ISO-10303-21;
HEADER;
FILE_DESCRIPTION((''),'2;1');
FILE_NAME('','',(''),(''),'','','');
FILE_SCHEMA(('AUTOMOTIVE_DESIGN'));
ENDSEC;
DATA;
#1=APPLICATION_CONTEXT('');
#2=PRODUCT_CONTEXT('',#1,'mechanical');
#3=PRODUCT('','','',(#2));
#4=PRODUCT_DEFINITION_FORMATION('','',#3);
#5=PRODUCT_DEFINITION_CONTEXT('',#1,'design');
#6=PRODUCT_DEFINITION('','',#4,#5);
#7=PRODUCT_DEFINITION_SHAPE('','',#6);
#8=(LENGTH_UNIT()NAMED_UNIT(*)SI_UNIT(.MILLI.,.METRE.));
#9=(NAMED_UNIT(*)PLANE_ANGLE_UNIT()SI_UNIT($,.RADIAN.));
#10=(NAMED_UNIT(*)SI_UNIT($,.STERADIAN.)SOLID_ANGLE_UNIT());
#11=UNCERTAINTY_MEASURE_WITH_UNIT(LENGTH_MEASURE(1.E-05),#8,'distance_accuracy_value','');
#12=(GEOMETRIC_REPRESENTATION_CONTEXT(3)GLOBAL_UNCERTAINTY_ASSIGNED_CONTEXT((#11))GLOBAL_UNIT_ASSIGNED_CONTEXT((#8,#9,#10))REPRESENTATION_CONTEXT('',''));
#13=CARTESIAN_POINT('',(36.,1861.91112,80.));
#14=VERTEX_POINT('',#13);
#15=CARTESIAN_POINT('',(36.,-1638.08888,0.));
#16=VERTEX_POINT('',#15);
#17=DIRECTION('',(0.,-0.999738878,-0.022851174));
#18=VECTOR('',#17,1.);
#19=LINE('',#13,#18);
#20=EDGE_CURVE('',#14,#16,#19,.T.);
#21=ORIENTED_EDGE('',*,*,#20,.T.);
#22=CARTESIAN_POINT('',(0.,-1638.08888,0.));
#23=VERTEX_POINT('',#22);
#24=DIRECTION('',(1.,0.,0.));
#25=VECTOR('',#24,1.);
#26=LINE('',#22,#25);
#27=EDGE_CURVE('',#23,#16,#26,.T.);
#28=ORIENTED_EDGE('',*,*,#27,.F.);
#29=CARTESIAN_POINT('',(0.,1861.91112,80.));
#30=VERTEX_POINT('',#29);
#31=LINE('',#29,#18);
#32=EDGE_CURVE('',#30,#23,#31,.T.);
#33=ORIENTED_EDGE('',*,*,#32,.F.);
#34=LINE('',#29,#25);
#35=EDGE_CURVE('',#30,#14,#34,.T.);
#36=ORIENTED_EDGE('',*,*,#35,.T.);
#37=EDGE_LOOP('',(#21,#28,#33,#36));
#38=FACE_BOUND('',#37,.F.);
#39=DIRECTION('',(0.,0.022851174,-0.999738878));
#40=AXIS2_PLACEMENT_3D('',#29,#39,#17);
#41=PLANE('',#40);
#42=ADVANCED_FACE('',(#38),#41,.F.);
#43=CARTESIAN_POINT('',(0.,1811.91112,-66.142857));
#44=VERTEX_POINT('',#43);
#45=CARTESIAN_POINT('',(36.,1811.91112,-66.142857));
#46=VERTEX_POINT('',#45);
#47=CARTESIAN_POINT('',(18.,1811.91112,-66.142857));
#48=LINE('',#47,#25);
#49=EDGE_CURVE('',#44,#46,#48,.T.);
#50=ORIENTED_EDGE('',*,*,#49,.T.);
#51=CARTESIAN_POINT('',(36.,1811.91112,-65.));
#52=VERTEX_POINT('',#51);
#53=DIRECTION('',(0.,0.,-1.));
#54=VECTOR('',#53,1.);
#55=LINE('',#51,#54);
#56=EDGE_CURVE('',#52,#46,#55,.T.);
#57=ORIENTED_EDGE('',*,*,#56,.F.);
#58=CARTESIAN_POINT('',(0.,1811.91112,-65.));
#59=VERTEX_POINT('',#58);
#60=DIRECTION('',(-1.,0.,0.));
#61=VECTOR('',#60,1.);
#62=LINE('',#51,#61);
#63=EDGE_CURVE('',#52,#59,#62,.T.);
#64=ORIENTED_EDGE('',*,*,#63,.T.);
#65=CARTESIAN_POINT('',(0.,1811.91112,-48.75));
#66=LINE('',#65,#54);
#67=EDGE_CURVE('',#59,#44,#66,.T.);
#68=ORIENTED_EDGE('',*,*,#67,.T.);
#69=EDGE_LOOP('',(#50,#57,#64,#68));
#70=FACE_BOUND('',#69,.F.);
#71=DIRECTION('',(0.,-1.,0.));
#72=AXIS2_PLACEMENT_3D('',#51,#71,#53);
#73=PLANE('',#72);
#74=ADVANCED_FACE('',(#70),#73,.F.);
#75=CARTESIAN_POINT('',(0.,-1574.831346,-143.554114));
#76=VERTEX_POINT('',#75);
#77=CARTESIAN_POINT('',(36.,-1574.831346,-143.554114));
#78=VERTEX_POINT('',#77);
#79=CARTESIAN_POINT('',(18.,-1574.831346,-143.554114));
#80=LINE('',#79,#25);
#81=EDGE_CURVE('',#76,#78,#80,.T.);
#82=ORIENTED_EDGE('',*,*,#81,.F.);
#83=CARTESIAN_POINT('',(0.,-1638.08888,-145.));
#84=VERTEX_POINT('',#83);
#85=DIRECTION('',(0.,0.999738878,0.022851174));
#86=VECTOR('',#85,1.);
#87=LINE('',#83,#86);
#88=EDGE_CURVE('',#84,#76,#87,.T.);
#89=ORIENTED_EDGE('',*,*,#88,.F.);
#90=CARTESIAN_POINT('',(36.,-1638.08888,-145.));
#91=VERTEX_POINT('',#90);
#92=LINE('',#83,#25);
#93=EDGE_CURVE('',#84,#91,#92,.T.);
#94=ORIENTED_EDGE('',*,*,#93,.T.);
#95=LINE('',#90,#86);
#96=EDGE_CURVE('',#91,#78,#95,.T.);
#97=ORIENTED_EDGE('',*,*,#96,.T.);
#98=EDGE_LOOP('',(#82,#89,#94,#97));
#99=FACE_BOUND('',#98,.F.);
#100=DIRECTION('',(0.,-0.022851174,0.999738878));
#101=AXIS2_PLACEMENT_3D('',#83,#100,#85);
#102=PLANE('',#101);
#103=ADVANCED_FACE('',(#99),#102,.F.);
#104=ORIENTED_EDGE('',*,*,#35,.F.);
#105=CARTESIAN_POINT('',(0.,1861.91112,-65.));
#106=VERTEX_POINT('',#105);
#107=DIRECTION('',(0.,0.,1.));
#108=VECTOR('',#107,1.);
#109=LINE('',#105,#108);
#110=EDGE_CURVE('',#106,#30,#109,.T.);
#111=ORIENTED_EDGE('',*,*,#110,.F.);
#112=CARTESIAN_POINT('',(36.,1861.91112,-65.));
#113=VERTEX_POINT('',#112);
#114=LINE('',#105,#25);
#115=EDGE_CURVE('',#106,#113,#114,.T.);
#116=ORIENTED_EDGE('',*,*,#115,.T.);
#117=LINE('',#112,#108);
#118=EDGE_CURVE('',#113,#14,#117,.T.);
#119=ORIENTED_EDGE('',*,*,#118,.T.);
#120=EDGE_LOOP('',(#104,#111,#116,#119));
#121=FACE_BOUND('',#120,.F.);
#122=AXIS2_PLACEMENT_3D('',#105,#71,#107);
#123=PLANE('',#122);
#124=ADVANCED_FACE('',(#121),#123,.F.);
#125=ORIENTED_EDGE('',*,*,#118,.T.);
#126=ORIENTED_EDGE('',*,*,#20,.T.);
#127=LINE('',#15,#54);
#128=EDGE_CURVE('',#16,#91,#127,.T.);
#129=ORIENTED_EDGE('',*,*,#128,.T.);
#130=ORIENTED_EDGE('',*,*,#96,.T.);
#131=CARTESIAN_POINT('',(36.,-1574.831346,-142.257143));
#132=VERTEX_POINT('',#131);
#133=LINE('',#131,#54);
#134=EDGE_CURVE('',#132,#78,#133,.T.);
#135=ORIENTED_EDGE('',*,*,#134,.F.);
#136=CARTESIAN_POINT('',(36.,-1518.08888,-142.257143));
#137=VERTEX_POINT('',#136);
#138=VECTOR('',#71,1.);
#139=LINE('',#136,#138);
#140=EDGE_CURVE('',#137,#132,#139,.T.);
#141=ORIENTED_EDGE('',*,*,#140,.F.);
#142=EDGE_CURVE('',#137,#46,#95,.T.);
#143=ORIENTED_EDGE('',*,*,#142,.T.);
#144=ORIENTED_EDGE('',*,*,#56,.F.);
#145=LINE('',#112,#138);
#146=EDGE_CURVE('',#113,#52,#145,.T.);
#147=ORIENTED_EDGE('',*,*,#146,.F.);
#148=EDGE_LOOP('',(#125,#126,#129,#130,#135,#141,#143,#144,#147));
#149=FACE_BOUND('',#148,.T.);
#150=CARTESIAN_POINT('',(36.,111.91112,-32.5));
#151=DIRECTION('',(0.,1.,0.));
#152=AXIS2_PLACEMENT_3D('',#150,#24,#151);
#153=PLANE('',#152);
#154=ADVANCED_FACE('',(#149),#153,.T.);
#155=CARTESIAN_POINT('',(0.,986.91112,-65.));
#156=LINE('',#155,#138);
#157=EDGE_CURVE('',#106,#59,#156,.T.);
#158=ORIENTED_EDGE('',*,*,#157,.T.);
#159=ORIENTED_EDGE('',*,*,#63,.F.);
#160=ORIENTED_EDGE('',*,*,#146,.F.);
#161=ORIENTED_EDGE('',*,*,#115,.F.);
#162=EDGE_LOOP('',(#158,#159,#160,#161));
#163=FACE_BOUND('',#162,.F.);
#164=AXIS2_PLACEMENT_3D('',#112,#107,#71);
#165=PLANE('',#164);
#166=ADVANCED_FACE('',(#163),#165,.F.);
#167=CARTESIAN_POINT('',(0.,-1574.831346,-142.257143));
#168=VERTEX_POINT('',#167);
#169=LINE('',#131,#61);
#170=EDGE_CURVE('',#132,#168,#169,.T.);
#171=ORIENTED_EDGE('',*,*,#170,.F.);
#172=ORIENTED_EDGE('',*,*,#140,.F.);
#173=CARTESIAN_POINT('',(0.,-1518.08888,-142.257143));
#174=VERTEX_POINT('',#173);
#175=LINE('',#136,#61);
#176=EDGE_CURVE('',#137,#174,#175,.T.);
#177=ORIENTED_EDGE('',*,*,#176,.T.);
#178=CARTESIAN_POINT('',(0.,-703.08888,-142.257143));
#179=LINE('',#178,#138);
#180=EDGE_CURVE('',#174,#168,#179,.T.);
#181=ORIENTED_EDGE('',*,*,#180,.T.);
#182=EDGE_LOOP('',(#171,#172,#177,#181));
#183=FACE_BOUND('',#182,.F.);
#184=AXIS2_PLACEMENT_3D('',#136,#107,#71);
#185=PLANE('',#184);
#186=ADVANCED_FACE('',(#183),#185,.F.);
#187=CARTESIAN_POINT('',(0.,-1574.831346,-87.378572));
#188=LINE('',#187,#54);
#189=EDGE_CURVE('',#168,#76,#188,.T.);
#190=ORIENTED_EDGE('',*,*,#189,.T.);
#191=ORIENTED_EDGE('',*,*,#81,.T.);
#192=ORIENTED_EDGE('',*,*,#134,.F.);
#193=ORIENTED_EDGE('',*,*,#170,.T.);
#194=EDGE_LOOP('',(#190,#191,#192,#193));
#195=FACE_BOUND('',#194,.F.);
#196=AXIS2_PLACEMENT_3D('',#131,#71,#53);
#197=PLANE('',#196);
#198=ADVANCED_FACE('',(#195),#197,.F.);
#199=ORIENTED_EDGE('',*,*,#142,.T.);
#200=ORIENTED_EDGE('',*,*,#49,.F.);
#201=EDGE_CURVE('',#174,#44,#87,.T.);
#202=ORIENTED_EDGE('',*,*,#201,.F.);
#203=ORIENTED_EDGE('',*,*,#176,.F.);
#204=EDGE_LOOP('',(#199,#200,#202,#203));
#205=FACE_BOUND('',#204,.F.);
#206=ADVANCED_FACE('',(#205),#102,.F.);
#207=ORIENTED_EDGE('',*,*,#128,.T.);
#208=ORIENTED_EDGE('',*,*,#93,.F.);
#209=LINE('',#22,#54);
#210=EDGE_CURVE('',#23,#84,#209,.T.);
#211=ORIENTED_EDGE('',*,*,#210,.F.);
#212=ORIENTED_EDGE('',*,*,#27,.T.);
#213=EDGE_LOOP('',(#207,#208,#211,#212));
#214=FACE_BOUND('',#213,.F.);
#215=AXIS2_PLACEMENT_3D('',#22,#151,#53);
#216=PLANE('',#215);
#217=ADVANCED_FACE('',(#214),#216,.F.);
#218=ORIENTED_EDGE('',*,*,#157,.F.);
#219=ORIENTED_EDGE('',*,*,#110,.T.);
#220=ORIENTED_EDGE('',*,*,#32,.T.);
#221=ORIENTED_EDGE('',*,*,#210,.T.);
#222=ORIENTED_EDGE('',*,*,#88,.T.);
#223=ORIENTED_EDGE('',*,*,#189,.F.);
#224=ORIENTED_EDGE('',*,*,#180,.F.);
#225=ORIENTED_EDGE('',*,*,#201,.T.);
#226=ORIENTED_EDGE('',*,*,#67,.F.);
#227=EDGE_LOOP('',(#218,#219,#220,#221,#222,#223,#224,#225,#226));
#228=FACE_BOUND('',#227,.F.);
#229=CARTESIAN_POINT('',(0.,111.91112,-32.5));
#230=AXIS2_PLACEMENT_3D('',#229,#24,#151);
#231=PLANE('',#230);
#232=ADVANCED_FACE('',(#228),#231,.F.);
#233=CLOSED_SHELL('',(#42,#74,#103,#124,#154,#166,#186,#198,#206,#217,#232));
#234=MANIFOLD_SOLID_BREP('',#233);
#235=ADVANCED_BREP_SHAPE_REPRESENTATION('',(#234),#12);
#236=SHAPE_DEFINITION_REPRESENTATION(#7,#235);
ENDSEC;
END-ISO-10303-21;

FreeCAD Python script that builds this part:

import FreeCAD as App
import Part
import Sketcher

V = App.Vector

doc = App.newDocument("Part")
body = doc.addObject("PartDesign::Body", "Body")

sketch1 = body.newObject("Sketcher::SketchObject", "Sketch")
sketch1.AttachmentSupport = (doc.getObject("YZ_Plane"), [""])
sketch1.MapMode = "FlatFace"
sketch1.addGeometry(Part.LineSegment(V(-1638, 0, 0), V(-1638, -145, 0)), False)
sketch1.addGeometry(Part.LineSegment(V(-1638, -145, 0), V(1862, -65, 0)), False)
sketch1.addGeometry(Part.LineSegment(V(1862, -65, 0), V(1862, 80, 0)), False)
sketch1.addGeometry(Part.LineSegment(V(1862, 80, 0), V(-1638, 0, 0)), False)
sketch1.addConstraint(Sketcher.Constraint("Coincident", 0, 2, 1, 1))
sketch1.addConstraint(Sketcher.Constraint("Coincident", 1, 2, 2, 1))
sketch1.addConstraint(Sketcher.Constraint("Coincident", 2, 2, 3, 1))
sketch1.addConstraint(Sketcher.Constraint("Coincident", 3, 2, 0, 1))
sketch1.addConstraint(Sketcher.Constraint("Vertical", 0))
sketch1.addConstraint(Sketcher.Constraint("Vertical", 2))
sketch1.addConstraint(Sketcher.Constraint("PointOnObject", 3, 2, -1))
sketch1.addConstraint(Sketcher.Constraint("Parallel", 1, 3))
sketch1.addConstraint(Sketcher.Constraint("DistanceY", 0, 2, 0, 1, 145.0))
sketch1.addConstraint(Sketcher.Constraint("DistanceY", 1, 2, -1, 1, 65.0))
sketch1.addConstraint(Sketcher.Constraint("DistanceX", 0, 2, 1, 2, 3500.0))
sketch1.addConstraint(Sketcher.Constraint("DistanceX", 0, 2, -1, 1, 1638.08888))
pad1 = body.newObject("PartDesign::Pad", "Pad")
pad1.Profile = sketch1
pad1.Length = 36

sketch2 = body.newObject("Sketcher::SketchObject", "Sketch001")
sketch2.AttachmentSupport = (doc.getObject("YZ_Plane"), [""])
sketch2.MapMode = "FlatFace"
sketch2.AttachmentOffset = App.Placement(V(0, 0, 36), App.Rotation())
sketch2.addGeometry(Part.LineSegment(V(1875, -80, 0), V(1862, -65, 0)), False)
sketch2.addGeometry(Part.LineSegment(V(1862, -65, 0), V(1812, -65, 0)), False)
sketch2.addGeometry(Part.LineSegment(V(1812, -65, 0), V(1812, -80, 0)), False)
sketch2.addGeometry(Part.LineSegment(V(1812, -80, 0), V(1875, -80, 0)), False)
sketch2.addConstraint(Sketcher.Constraint("Coincident", 0, 2, 1, 1))
sketch2.addConstraint(Sketcher.Constraint("Coincident", 1, 2, 2, 1))
sketch2.addConstraint(Sketcher.Constraint("Coincident", 2, 2, 3, 1))
sketch2.addConstraint(Sketcher.Constraint("Coincident", 3, 2, 0, 1))
sketch2.addConstraint(Sketcher.Constraint("Horizontal", 1))
sketch2.addConstraint(Sketcher.Constraint("Vertical", 2))
sketch2.addConstraint(Sketcher.Constraint("Horizontal", 3))
sketch2.addConstraint(Sketcher.Constraint("DistanceX", 1, 2, 1, 1, 50.0))
sketch2.addConstraint(Sketcher.Constraint("DistanceY", 0, 2, -1, 1, 65.0))
sketch2.addConstraint(Sketcher.Constraint("DistanceY", 2, 2, 2, 1, 14.733009))
sketch2.addConstraint(Sketcher.Constraint("DistanceX", 3, 1, 3, 2, 62.673846))
sketch2.addConstraint(Sketcher.Constraint("DistanceX", -1, 1, 0, 2, 1861.91112))
pocket1 = body.newObject("PartDesign::Pocket", "Pocket")
pocket1.Profile = sketch2
pocket1.Type = "ThroughAll"

sketch3 = body.newObject("Sketcher::SketchObject", "Sketch002")
sketch3.AttachmentSupport = (doc.getObject("YZ_Plane"), [""])
sketch3.MapMode = "FlatFace"
sketch3.AttachmentOffset = App.Placement(V(0, 0, 36), App.Rotation())
sketch3.addGeometry(Part.LineSegment(V(-1516, -161, 0), V(-1518, -142, 0)), False)
sketch3.addGeometry(Part.LineSegment(V(-1518, -142, 0), V(-1575, -142, 0)), False)
sketch3.addGeometry(Part.LineSegment(V(-1575, -142, 0), V(-1575, -161, 0)), False)
sketch3.addGeometry(Part.LineSegment(V(-1575, -161, 0), V(-1516, -161, 0)), False)
sketch3.addConstraint(Sketcher.Constraint("Coincident", 0, 2, 1, 1))
sketch3.addConstraint(Sketcher.Constraint("Coincident", 1, 2, 2, 1))
sketch3.addConstraint(Sketcher.Constraint("Coincident", 2, 2, 3, 1))
sketch3.addConstraint(Sketcher.Constraint("Coincident", 3, 2, 0, 1))
sketch3.addConstraint(Sketcher.Constraint("Horizontal", 1))
sketch3.addConstraint(Sketcher.Constraint("Vertical", 2))
sketch3.addConstraint(Sketcher.Constraint("Horizontal", 3))
sketch3.addConstraint(Sketcher.Constraint("Distance", 0, 18.599972))
sketch3.addConstraint(Sketcher.Constraint("DistanceX", 1, 2, 1, 1, 56.742466))
sketch3.addConstraint(Sketcher.Constraint("DistanceX", 3, 1, 3, 2, 58.715326))
sketch3.addConstraint(Sketcher.Constraint("DistanceX", 0, 2, -1, 1, 1518.08888))
sketch3.addConstraint(Sketcher.Constraint("DistanceY", 2, 2, -1, 1, 160.75219))
pocket2 = body.newObject("PartDesign::Pocket", "Pocket001")
pocket2.Profile = sketch3
pocket2.Type = "ThroughAll"

doc.recompute()
